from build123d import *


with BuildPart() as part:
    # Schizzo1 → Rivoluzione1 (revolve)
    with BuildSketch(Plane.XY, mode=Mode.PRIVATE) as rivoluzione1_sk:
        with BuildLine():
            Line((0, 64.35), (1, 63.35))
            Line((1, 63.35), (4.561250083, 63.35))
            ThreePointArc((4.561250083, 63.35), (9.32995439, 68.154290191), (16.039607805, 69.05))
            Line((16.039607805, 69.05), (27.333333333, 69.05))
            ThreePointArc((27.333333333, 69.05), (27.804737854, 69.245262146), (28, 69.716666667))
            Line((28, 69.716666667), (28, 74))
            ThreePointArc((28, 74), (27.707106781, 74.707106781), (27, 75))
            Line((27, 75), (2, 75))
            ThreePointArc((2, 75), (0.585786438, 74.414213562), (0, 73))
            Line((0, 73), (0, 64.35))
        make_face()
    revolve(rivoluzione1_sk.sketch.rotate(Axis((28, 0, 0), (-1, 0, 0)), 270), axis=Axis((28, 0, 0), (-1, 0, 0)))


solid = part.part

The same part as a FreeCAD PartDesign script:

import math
import FreeCAD as App
import Part
import Sketcher
Q = App.Units.Quantity

doc = App.newDocument("Part")
body = doc.addObject("PartDesign::Body", "Body")

# Sketch on XY plane
sketch1 = doc.addObject("Sketcher::SketchObject", "Sketch")
body.addObject(sketch1)
sketch1.AttachmentSupport = (doc.XY_Plane, [""])
sketch1.MapMode = "FlatFace"
sketch1.addGeometry([
    Part.LineSegment(App.Vector(0, 64.35, 0), App.Vector(1, 63.35, 0)),  # 0
    Part.LineSegment(App.Vector(1, 63.35, 0), App.Vector(4.56125, 63.35, 0)),  # 1
    Part.ArcOfCircle(Part.Circle(App.Vector(14, 58.75, 0), App.Vector(0, 0, 1), 10.5), math.radians(78.799182), math.radians(154.017587)),  # 2
    Part.LineSegment(App.Vector(16.039608, 69.05, 0), App.Vector(27.333333, 69.05, 0)),  # 3
    Part.ArcOfCircle(Part.Circle(App.Vector(27.333333, 69.716667, 0), App.Vector(0, 0, 1), 0.666667), math.radians(-90), math.radians(0)),  # 4
    Part.LineSegment(App.Vector(28, 69.716667, 0), App.Vector(28, 74, 0)),  # 5
    Part.ArcOfCircle(Part.Circle(App.Vector(27, 74, 0), App.Vector(0, 0, 1), 1), math.radians(0), math.radians(90)),  # 6
    Part.LineSegment(App.Vector(27, 75, 0), App.Vector(2, 75, 0)),  # 7
    Part.ArcOfCircle(Part.Circle(App.Vector(2, 73, 0), App.Vector(0, 0, 1), 2), math.radians(90), math.radians(180)),  # 8
    Part.LineSegment(App.Vector(0, 73, 0), App.Vector(0, 64.35, 0)),  # 9
], False)
sketch1.addConstraint([
    Sketcher.Constraint("Coincident", 0, 2, 1, 1),
    Sketcher.Constraint("Coincident", 1, 2, 2, 2),
    Sketcher.Constraint("Coincident", 2, 1, 3, 1),
    Sketcher.Constraint("Tangent", 3, 2, 4, 1),
    Sketcher.Constraint("Tangent", 4, 2, 5, 1),
    Sketcher.Constraint("Tangent", 5, 2, 6, 1),
    Sketcher.Constraint("Tangent", 6, 2, 7, 1),
    Sketcher.Constraint("Tangent", 7, 2, 8, 1),
    Sketcher.Constraint("Tangent", 8, 2, 9, 1),
    Sketcher.Constraint("Coincident", 9, 2, 0, 1),
    Sketcher.Constraint("Horizontal", 1),
    Sketcher.Constraint("Horizontal", 3),
    Sketcher.Constraint("Vertical", 5),
    Sketcher.Constraint("Horizontal", 7),
    Sketcher.Constraint("Vertical", 9),
    Sketcher.Constraint("PointOnObject", 8, 2, -2),
    Sketcher.Constraint("Radius", 6, 1.0),
    Sketcher.Constraint("Radius", 8, 2.0),
    Sketcher.Constraint("Radius", 2, 10.5),
    Sketcher.Constraint("DistanceX", 7, 2, 7, 1, 25.0),
    Sketcher.Constraint("Angle", 0, Q("-45 deg")),
    Sketcher.Constraint("DistanceX", -1, 1, 2, 3, 14.0),
    Sketcher.Constraint("DistanceY", -1, 1, 6, 3, 74.0),
    Sketcher.Constraint("DistanceX", -1, 1, 0, 2, 1.0),
    Sketcher.Constraint("DistanceY", 9, 2, 9, 1, 8.65),
    Sketcher.Constraint("DistanceY", 2, 3, 0, 2, 4.6),
    Sketcher.Constraint("DistanceY", 2, 3, 2, 1, 10.3),
    Sketcher.Constraint("Radius", 4, 0.666667),
])
revolution = doc.addObject("PartDesign::Revolution", "Revolution")
body.addObject(revolution)
revolution.Profile = sketch1
revolution.ReferenceAxis = (sketch1, ["H_Axis"])
revolution.Angle = 360

doc.recompute()
